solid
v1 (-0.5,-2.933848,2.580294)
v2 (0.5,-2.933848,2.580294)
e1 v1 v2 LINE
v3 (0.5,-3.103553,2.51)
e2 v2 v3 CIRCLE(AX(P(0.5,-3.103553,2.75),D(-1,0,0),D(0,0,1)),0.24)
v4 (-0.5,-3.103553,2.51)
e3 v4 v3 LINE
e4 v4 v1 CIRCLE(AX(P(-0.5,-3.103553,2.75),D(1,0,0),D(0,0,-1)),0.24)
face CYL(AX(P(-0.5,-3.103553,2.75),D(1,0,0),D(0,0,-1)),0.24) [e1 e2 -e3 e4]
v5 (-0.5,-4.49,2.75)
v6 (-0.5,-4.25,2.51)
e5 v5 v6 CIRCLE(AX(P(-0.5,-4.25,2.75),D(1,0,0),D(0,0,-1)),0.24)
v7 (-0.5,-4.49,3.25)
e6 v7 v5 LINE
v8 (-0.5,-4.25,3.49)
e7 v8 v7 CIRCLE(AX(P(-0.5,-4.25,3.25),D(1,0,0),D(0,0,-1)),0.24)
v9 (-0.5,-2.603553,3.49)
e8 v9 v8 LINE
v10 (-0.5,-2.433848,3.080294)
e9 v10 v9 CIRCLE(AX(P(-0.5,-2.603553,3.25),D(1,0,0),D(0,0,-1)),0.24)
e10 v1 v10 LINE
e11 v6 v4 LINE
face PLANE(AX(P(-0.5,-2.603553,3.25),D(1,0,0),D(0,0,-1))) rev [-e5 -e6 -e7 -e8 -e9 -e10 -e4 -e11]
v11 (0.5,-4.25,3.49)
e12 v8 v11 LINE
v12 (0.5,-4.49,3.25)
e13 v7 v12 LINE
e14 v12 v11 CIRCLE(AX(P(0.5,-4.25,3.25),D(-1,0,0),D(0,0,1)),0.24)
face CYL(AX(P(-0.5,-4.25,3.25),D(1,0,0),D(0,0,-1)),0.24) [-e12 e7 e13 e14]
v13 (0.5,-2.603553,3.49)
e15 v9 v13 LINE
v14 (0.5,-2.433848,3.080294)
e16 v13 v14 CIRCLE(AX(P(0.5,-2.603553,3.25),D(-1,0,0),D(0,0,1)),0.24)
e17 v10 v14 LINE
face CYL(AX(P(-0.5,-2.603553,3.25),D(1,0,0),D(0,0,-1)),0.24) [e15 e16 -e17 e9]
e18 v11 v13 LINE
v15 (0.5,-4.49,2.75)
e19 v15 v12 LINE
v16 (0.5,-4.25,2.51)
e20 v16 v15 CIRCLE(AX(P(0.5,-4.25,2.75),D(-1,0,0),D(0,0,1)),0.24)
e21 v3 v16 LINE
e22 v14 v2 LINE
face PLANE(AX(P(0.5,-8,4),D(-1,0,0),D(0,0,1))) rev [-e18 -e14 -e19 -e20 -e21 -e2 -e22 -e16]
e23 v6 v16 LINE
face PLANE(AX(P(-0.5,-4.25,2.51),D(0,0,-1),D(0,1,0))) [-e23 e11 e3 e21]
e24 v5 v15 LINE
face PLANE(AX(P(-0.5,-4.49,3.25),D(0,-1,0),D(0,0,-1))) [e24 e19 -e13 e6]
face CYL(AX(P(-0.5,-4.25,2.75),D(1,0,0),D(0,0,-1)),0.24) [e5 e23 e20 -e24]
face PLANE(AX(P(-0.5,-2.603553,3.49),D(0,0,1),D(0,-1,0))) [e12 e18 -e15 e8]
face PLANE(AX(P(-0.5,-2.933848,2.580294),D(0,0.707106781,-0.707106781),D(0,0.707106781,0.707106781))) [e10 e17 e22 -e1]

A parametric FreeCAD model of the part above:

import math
import FreeCAD as App
import Part
import Sketcher
Q = App.Units.Quantity

doc = App.newDocument("Part")
params = doc.addObject("Spreadsheet::Sheet", "Params")
for row, (alias, value) in enumerate([
    ("sketch1_radius", "0.24 mm"),
    ("sketch1_height", "0.5 mm"),
    ("pad1_length", "0.5 mm"),
    ("pad1_length2", "0.5 mm"),
], start=1):
    params.set(f"A{row}", alias)
    params.set(f"B{row}", "=" + value)
    params.setAlias(f"B{row}", alias)

body = doc.addObject("PartDesign::Body", "Body")

sketch1 = body.newObject("Sketcher::SketchObject", "Sketch")
sketch1.AttachmentSupport = (doc.getObject("YZ_Plane"), [""])
sketch1.MapMode = "FlatFace"
sketch1.addGeometry([
    Part.LineSegment(App.Vector(-4.25, 2.51, 0), App.Vector(-3.1, 2.51, 0)),
    Part.ArcOfCircle(Part.Circle(App.Vector(-3.1, 2.75, 0), App.Vector(0, 0, 1), 0.24), math.radians(-90), math.radians(-45)),
    Part.LineSegment(App.Vector(-2.93, 2.58, 0), App.Vector(-2.43, 3.08, 0)),
    Part.ArcOfCircle(Part.Circle(App.Vector(-2.6, 3.25, 0), App.Vector(0, 0, 1), 0.24), math.radians(-45), math.radians(90)),
    Part.LineSegment(App.Vector(-2.6, 3.49, 0), App.Vector(-4.25, 3.49, 0)),
    Part.ArcOfCircle(Part.Circle(App.Vector(-4.25, 3.25, 0), App.Vector(0, 0, 1), 0.24), math.radians(90), math.radians(180)),
    Part.LineSegment(App.Vector(-4.49, 3.25, 0), App.Vector(-4.49, 2.75, 0)),
    Part.ArcOfCircle(Part.Circle(App.Vector(-4.25, 2.75, 0), App.Vector(0, 0, 1), 0.24), math.radians(-180), math.radians(-90)),
], False)
sketch1.addConstraint([
    Sketcher.Constraint("Tangent", 0, 2, 1, 1),
    Sketcher.Constraint("Tangent", 1, 2, 2, 1),
    Sketcher.Constraint("Tangent", 2, 2, 3, 1),
    Sketcher.Constraint("Tangent", 3, 2, 4, 1),
    Sketcher.Constraint("Tangent", 4, 2, 5, 1),
    Sketcher.Constraint("Tangent", 5, 2, 6, 1),
    Sketcher.Constraint("Tangent", 6, 2, 7, 1),
    Sketcher.Constraint("Tangent", 7, 2, 0, 1),
    Sketcher.Constraint("Horizontal", 0),
    Sketcher.Constraint("Horizontal", 4),
    Sketcher.Constraint("Vertical", 6),
    Sketcher.Constraint("Equal", 1, 3),
    Sketcher.Constraint("Equal", 3, 5),
    Sketcher.Constraint("Equal", 5, 7),
    Sketcher.Constraint("Angle", 2, Q("45 deg")),
    Sketcher.Constraint("Radius", 1, 0.24),
    Sketcher.Constraint("DistanceY", 6, 2, 6, 1, 0.5),
    Sketcher.Constraint("DistanceY", -1, 1, 1, 3, 2.75),
    Sketcher.Constraint("DistanceX", 5, 3, -1, 1, 4.25),
    Sketcher.Constraint("DistanceX", 0, 1, 0, 2, 1.146447),
])
sketch1.setExpression("Constraints[15]", "Params.sketch1_radius")
sketch1.setExpression("Constraints[16]", "Params.sketch1_height")
pad1 = body.newObject("PartDesign::Pad", "Pad")
pad1.Profile = sketch1
pad1.Type = "TwoLengths"
pad1.setExpression("Length", "Params.pad1_length")
pad1.setExpression("Length2", "Params.pad1_length2")

doc.recompute()
